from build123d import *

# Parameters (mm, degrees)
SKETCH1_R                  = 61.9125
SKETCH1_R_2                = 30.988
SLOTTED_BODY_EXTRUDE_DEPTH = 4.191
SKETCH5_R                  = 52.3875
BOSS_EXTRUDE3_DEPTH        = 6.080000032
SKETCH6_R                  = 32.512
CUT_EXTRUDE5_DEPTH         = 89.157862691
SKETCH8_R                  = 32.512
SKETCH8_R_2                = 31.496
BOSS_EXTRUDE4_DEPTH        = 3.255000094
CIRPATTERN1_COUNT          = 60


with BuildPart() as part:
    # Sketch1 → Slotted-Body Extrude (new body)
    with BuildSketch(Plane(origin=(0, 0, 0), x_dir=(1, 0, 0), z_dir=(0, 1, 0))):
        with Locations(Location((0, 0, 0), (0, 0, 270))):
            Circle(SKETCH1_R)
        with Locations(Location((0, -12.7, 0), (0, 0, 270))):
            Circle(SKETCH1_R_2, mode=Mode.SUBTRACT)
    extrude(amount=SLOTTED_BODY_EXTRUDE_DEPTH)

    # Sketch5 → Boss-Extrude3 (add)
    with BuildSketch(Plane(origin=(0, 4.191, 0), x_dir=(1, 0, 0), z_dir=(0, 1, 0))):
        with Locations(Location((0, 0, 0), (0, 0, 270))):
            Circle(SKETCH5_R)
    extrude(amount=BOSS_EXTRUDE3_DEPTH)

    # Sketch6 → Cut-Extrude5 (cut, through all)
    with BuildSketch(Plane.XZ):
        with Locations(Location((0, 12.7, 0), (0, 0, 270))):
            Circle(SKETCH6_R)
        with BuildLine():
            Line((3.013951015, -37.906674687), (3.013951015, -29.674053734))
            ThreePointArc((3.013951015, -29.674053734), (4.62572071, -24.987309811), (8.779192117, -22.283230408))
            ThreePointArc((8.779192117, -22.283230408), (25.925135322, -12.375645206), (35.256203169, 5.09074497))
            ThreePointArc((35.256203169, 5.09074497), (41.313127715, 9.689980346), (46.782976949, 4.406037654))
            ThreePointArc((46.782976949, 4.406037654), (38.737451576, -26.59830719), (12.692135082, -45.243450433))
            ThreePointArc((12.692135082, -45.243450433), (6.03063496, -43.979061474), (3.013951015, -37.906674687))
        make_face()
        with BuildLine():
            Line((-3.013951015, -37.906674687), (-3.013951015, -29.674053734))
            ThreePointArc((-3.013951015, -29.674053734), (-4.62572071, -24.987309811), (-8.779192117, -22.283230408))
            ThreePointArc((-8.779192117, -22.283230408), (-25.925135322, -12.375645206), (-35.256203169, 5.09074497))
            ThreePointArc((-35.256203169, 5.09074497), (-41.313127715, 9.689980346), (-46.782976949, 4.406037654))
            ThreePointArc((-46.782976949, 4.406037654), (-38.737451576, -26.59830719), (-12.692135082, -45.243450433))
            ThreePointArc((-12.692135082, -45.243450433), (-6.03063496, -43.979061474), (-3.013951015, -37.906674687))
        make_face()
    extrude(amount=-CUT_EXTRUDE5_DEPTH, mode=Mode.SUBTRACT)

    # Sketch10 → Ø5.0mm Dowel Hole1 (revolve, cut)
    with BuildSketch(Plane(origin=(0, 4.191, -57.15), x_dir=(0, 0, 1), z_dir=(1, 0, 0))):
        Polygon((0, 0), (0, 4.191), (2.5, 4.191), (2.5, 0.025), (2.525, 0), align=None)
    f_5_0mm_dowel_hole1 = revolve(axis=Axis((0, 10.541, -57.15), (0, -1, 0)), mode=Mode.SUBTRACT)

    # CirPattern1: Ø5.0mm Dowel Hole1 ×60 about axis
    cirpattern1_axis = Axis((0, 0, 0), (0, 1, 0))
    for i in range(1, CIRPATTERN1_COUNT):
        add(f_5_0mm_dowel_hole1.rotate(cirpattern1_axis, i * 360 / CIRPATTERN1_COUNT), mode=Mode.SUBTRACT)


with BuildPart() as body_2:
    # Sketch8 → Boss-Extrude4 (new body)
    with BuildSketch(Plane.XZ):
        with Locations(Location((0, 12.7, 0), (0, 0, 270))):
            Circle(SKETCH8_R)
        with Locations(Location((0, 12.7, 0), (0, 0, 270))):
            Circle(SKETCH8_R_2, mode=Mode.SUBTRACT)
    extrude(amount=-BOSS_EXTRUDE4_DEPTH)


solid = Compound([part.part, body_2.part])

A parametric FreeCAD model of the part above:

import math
import FreeCAD as App
import Part
import Sketcher
from FreeCAD import Vector
Q = App.Units.Quantity


def add_polygon(sketch, points):
    """Adds a closed chain of lines whose ends are joined by coincident constraints."""
    first, n = sketch.GeometryCount, len(points)
    for a, b in zip(points, points[1:] + points[:1]):
        sketch.addGeometry(Part.LineSegment(App.Vector(*a, 0), App.Vector(*b, 0)), False)
    for i in range(n):
        sketch.addConstraint(Sketcher.Constraint("Coincident", first + i, 2, first + (i + 1) % n, 1))

doc = App.newDocument("Part")
body = doc.addObject("PartDesign::Body", "Body")

# Sketch on XZ plane
sketch1 = body.newObject("Sketcher::SketchObject", "Sketch")
sketch1.AttachmentSupport = (doc.getObject("XZ_Plane"), [""])
sketch1.MapMode = "FlatFace"
sketch1.addGeometry(Part.Circle(Vector(0, 0, 0), Vector(0, 0, 1), 62), False)
sketch1.addGeometry(Part.Circle(Vector(0, 13, 0), Vector(0, 0, 1), 31), False)
sketch1.addConstraint(Sketcher.Constraint("Coincident", 0, 3, -1, 1))
sketch1.addConstraint(Sketcher.Constraint("PointOnObject", 1, 3, -2))
sketch1.addConstraint(Sketcher.Constraint("Diameter", 1, Q("2.44 in")))
sketch1.addConstraint(Sketcher.Constraint("Diameter", 0, Q("4.875 in")))
sketch1.addConstraint(Sketcher.Constraint("DistanceY", -1, 1, 1, 3, Q("0.5 in")))
pad1 = body.newObject("PartDesign::Pad", "Pad")
pad1.Profile = sketch1
pad1.Length = Q("0.165 in")
pad1.Reversed = True

# Sketch on XZ plane
sketch2 = body.newObject("Sketcher::SketchObject", "Sketch001")
sketch2.AttachmentSupport = (doc.getObject("XZ_Plane"), [""])
sketch2.MapMode = "FlatFace"
sketch2.AttachmentOffset = App.Placement(Vector(0, 0, -0.165 * 25.4), App.Rotation())
sketch2.addGeometry(Part.Circle(Vector(0, 0, 0), Vector(0, 0, 1), 52), False)
sketch2.addConstraint(Sketcher.Constraint("Coincident", 0, 3, -1, 1))
sketch2.addConstraint(Sketcher.Constraint("Diameter", 0, Q("4.125 in")))
pad2 = body.newObject("PartDesign::Pad", "Pad001")
pad2.Profile = sketch2
pad2.Length = 6.08
pad2.Reversed = True

# Sketch on XZ plane
sketch3 = body.newObject("Sketcher::SketchObject", "Sketch002")
sketch3.AttachmentSupport = (doc.getObject("XZ_Plane"), [""])
sketch3.MapMode = "FlatFace"
sketch3.addGeometry(Part.Circle(Vector(0, 13, 0), Vector(0, 0, 1), 33), False)
sketch3.addGeometry(Part.LineSegment(Vector(3, -30, 0), Vector(3, -38, 0)), False)
sketch3.addGeometry(Part.ArcOfCircle(Part.Circle(Vector(11, -38, 0), Vector(0, 0, 1), 8), math.radians(-180), math.radians(-74)), False)
sketch3.addGeometry(Part.ArcOfCircle(Part.Circle(Vector(0, 0, 0), Vector(0, 0, 1), 47), math.radians(-74), math.radians(5)), False)
sketch3.addGeometry(Part.ArcOfCircle(Part.Circle(Vector(41, 4, 0), Vector(0, 0, 1), 6), math.radians(5), math.radians(168)), False)
sketch3.addGeometry(Part.ArcOfCircle(Part.Circle(Vector(0, 13, 0), Vector(0, 0, 1), 36), math.radians(-76), math.radians(-12)), False)
sketch3.addGeometry(Part.ArcOfCircle(Part.Circle(Vector(11, -30, 0), Vector(0, 0, 1), 8), math.radians(104), math.radians(180)), False)
sketch3.addGeometry(Part.LineSegment(Vector(-3, -38, 0), Vector(-3, -30, 0)), False)
sketch3.addGeometry(Part.ArcOfCircle(Part.Circle(Vector(-11, -30, 0), Vector(0, 0, 1), 8), math.radians(0), math.radians(76)), False)
sketch3.addGeometry(Part.ArcOfCircle(Part.Circle(Vector(0, 13, 0), Vector(0, 0, 1), 36), math.radians(-168), math.radians(-104)), False)
sketch3.addGeometry(Part.ArcOfCircle(Part.Circle(Vector(-41, 4, 0), Vector(0, 0, 1), 6), math.radians(12), math.radians(175)), False)
sketch3.addGeometry(Part.ArcOfCircle(Part.Circle(Vector(0, 0, 0), Vector(0, 0, 1), 47), math.radians(175), math.radians(254)), False)
sketch3.addGeometry(Part.ArcOfCircle(Part.Circle(Vector(-11, -38, 0), Vector(0, 0, 1), 8), math.radians(-106), math.radians(0)), False)
sketch3.addConstraint(Sketcher.Constraint("Tangent", 1, 2, 2, 1))
sketch3.addConstraint(Sketcher.Constraint("Tangent", 2, 2, 3, 1))
sketch3.addConstraint(Sketcher.Constraint("Tangent", 3, 2, 4, 1))
sketch3.addConstraint(Sketcher.Constraint("Tangent", 4, 2, 5, 2))
sketch3.addConstraint(Sketcher.Constraint("Tangent", 5, 1, 6, 1))
sketch3.addConstraint(Sketcher.Constraint("Tangent", 6, 2, 1, 1))
sketch3.addConstraint(Sketcher.Constraint("Tangent", 7, 2, 8, 1))
sketch3.addConstraint(Sketcher.Constraint("Tangent", 8, 2, 9, 2))
sketch3.addConstraint(Sketcher.Constraint("Tangent", 9, 1, 10, 1))
sketch3.addConstraint(Sketcher.Constraint("Tangent", 10, 2, 11, 1))
sketch3.addConstraint(Sketcher.Constraint("Tangent", 11, 2, 12, 1))
sketch3.addConstraint(Sketcher.Constraint("Tangent", 12, 2, 7, 1))
sketch3.addConstraint(Sketcher.Constraint("Vertical", 1))
sketch3.addConstraint(Sketcher.Constraint("Vertical", 7))
sketch3.addConstraint(Sketcher.Constraint("Coincident", 3, 3, -1, 1))
sketch3.addConstraint(Sketcher.Constraint("Coincident", 11, 3, -1, 1))
sketch3.addConstraint(Sketcher.Constraint("Coincident", 5, 3, 0, 3))
sketch3.addConstraint(Sketcher.Constraint("Coincident", 9, 3, 0, 3))
sketch3.addConstraint(Sketcher.Constraint("Equal", 2, 6))
sketch3.addConstraint(Sketcher.Constraint("Equal", 6, 8))
sketch3.addConstraint(Sketcher.Constraint("Equal", 5, 9))
sketch3.addConstraint(Sketcher.Constraint("Equal", 4, 10))
sketch3.addConstraint(Sketcher.Constraint("Equal", 3, 11))
sketch3.addConstraint(Sketcher.Constraint("Equal", 8, 12))
sketch3.addConstraint(Sketcher.Constraint("Symmetric", 6, 3, 8, 3, -2))
sketch3.addConstraint(Sketcher.Constraint("Radius", 2, Q("0.3 in")))
sketch3.addConstraint(Sketcher.Constraint("Diameter", 0, Q("2.56 in")))
sketch3.addConstraint(Sketcher.Constraint("Radius", 3, Q("1.85 in")))
sketch3.addConstraint(Sketcher.Constraint("Radius", 4, Q("0.23 in")))
sketch3.addConstraint(Sketcher.Constraint("Radius", 5, Q("1.42 in")))
sketch3.addConstraint(Sketcher.Constraint("DistanceY", -1, 1, 0, 3, Q("0.5 in")))
sketch3.addConstraint(Sketcher.Constraint("DistanceY", 1, 2, 1, 1, 8.232621))
pocket1 = body.newObject("PartDesign::Pocket", "Pocket")
pocket1.Profile = sketch3
pocket1.Type = "ThroughAll"

# Sketch on YZ plane
sketch4 = body.newObject("Sketcher::SketchObject", "Sketch003")
sketch4.AttachmentSupport = (doc.getObject("YZ_Plane"), [""])
sketch4.MapMode = "FlatFace"
add_polygon(sketch4, [(0, -57.15), (4.191, -57.15), (4.191, -54.625), (4.166, -54.65), (0, -54.65)])  # lines 0-4
sketch4.addGeometry(Part.LineSegment(Vector(4.191, -57.15, 0), Vector(0, -57.15, 0)), True)  # axis
sketch4.addConstraint(Sketcher.Constraint("Horizontal", 0))
sketch4.addConstraint(Sketcher.Constraint("Vertical", 1))
sketch4.addConstraint(Sketcher.Constraint("Horizontal", 3))
sketch4.addConstraint(Sketcher.Constraint("Vertical", 4))
sketch4.addConstraint(Sketcher.Constraint("Horizontal", 5))
sketch4.addConstraint(Sketcher.Constraint("Coincident", 5, 1, 0, 2))
sketch4.addConstraint(Sketcher.Constraint("PointOnObject", 3, 2, -2))
sketch4.addConstraint(Sketcher.Constraint("PointOnObject", 5, 2, -2))
sketch4.addConstraint(Sketcher.Constraint("Angle", 2, Q("-135 deg")))
sketch4.addConstraint(Sketcher.Constraint("DistanceX", 0, 1, 0, 2, Q("0.165 in")))
sketch4.addConstraint(Sketcher.Constraint("DistanceY", 0, 2, -1, 1, Q("2.25 in")))
sketch4.addConstraint(Sketcher.Constraint("DistanceX", 3, 2, 3, 1, 4.166))
sketch4.addConstraint(Sketcher.Constraint("DistanceY", 1, 1, 1, 2, 2.525))
groove = body.newObject("PartDesign::Groove", "Groove")
groove.Profile = sketch4
groove.ReferenceAxis = (sketch4, ["Axis0"])
groove.Angle = 360
doc.recompute()

polarpattern = body.newObject("PartDesign::PolarPattern", "PolarPattern")
polarpattern.Originals = [groove]
polarpattern.Axis = (doc.getObject("Y_Axis"), [""])
polarpattern.Angle = 360
polarpattern.Occurrences = 60
body.Tip = polarpattern
body2 = doc.addObject("PartDesign::Body", "Body001")

# Sketch on XZ plane
sketch5 = body2.newObject("Sketcher::SketchObject", "Sketch004")
sketch5.AttachmentSupport = (doc.getObject("XZ_Plane001"), [""])
sketch5.MapMode = "FlatFace"
sketch5.addGeometry(Part.Circle(Vector(0, 13, 0), Vector(0, 0, 1), 33), False)
sketch5.addGeometry(Part.Circle(Vector(0, 13, 0), Vector(0, 0, 1), 31), False)
sketch5.addConstraint(Sketcher.Constraint("Coincident", 1, 3, 0, 3))
sketch5.addConstraint(Sketcher.Constraint("PointOnObject", 0, 3, -2))
sketch5.addConstraint(Sketcher.Constraint("Diameter", 0, Q("2.56 in")))
sketch5.addConstraint(Sketcher.Constraint("Diameter", 1, Q("2.48 in")))
sketch5.addConstraint(Sketcher.Constraint("DistanceY", -1, 1, 0, 3, Q("0.5 in")))
pad3 = body2.newObject("PartDesign::Pad", "Pad002")
pad3.Profile = sketch5
pad3.Length = 3.255
pad3.Reversed = True

doc.recompute()
